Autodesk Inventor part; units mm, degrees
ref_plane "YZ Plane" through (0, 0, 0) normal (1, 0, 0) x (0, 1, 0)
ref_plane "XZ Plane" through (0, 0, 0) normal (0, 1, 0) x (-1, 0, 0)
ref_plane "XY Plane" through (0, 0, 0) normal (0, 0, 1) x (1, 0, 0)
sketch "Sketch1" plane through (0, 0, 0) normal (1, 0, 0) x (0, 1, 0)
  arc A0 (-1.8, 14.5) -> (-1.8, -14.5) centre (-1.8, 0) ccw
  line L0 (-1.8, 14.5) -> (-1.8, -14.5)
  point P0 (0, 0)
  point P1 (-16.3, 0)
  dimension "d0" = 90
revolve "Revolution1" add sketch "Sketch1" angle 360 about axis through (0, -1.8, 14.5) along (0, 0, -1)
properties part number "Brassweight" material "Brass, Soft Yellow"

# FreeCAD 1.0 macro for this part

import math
import FreeCAD as App
import Part
import Sketcher
from FreeCAD import Vector

doc = App.newDocument("Part")
params = doc.addObject("Spreadsheet::Sheet", "Params")
for row, (alias, value) in enumerate([
    ("sketch1_radius", "14.5 mm"),
    ("revolution_angle", "360 deg"),
], start=1):
    params.set(f"A{row}", alias)
    params.set(f"B{row}", "=" + value)
    params.setAlias(f"B{row}", alias)

body = doc.addObject("PartDesign::Body", "Body")

# Sketch on YZ plane
sketch1 = body.newObject("Sketcher::SketchObject", "Sketch")
sketch1.AttachmentSupport = (doc.getObject("YZ_Plane"), [""])
sketch1.MapMode = "FlatFace"
sketch1.addGeometry([
    Part.LineSegment(Vector(-2, -14, 0), Vector(-2, 14, 0)),
    Part.ArcOfCircle(Part.Circle(Vector(-2, 0, 0), Vector(0, 0, 1), 14), math.radians(90), math.radians(270)),
], False)
sketch1.addGeometry(Part.LineSegment(Vector(-2, 14, 0), Vector(-2, -14, 0)), True)  # axis
sketch1.addConstraint([
    Sketcher.Constraint("Coincident", 0, 1, 1, 2),
    Sketcher.Constraint("Coincident", 1, 1, 0, 2),
    Sketcher.Constraint("Vertical", 0),
    Sketcher.Constraint("Vertical", 2),
    Sketcher.Constraint("Coincident", 2, 1, 1, 1),
    Sketcher.Constraint("PointOnObject", 1, 3, -1),
    Sketcher.Constraint("Vertical", 1, 3, 0, 1),
    Sketcher.Constraint("Equal", 0, 2),
    Sketcher.Constraint("Radius", 1, 14.5),
    Sketcher.Constraint("DistanceX", 1, 3, -1, 1, 1.8),
])
sketch1.setExpression("Constraints[8]", "Params.sketch1_radius")
revolution = body.newObject("PartDesign::Revolution", "Revolution")
revolution.Profile = sketch1
revolution.ReferenceAxis = (sketch1, ["Axis0"])
revolution.setExpression("Angle", "Params.revolution_angle")

doc.recompute()
